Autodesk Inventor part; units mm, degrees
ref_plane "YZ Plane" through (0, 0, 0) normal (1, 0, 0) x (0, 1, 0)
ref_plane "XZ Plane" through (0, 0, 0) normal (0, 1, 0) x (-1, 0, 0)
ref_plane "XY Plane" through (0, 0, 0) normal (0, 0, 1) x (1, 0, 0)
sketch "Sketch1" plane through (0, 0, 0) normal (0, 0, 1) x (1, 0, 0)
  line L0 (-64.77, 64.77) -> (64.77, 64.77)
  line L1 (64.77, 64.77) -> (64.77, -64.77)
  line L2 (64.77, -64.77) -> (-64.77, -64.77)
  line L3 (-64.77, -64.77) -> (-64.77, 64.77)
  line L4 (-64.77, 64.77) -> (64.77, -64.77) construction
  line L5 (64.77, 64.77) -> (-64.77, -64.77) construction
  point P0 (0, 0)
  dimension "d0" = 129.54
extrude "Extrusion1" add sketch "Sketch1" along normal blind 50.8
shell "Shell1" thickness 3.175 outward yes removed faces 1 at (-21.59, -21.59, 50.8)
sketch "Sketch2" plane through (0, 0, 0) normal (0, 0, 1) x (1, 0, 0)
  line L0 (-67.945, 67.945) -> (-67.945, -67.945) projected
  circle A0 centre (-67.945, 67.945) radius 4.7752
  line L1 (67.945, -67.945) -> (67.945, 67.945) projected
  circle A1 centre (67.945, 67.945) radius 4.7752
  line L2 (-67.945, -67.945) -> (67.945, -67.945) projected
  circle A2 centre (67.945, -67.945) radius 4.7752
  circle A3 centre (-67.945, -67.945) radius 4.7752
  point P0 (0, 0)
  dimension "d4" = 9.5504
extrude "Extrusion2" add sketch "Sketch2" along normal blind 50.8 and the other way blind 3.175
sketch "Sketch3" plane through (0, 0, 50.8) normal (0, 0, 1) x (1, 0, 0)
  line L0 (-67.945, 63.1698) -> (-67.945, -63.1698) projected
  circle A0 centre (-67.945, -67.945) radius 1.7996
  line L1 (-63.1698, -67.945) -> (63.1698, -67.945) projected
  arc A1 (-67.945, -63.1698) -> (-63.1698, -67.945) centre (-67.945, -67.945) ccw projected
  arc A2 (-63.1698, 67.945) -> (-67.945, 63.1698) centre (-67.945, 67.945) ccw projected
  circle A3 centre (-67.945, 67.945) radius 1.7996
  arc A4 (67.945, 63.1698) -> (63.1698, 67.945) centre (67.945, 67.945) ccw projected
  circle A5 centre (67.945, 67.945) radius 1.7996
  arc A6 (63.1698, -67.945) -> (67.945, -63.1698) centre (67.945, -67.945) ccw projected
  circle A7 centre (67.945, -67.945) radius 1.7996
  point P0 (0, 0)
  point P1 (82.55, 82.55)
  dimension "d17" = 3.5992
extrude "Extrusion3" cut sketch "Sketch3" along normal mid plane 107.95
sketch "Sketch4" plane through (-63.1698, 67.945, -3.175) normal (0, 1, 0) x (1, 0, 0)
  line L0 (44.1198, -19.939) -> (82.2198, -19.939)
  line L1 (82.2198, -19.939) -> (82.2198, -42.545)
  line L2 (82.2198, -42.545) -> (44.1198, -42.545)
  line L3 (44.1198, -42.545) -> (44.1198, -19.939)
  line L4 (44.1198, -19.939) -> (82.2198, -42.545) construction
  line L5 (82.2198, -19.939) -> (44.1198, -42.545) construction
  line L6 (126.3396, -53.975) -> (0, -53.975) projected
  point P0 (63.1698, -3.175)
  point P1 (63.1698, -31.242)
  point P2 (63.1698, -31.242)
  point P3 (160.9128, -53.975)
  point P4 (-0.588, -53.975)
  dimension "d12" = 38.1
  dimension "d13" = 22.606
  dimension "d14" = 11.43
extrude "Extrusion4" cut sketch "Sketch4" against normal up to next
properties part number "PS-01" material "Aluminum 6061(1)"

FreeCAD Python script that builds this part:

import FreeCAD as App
import Part
import Sketcher
from FreeCAD import Vector
Q = App.Units.Quantity


def faces_at(feature, points):
    """Names of the faces that lie closest to the given points."""
    faces = feature.Shape.Faces
    near = lambda p: min(range(len(faces)), key=lambda i: faces[i].distToShape(Part.Vertex(*p))[0])
    return sorted({f"Face{near(p) + 1}" for p in points})


def add_polygon(sketch, points):
    """Adds a closed chain of lines whose ends are joined by coincident constraints."""
    first, n = sketch.GeometryCount, len(points)
    for a, b in zip(points, points[1:] + points[:1]):
        sketch.addGeometry(Part.LineSegment(App.Vector(*a, 0), App.Vector(*b, 0)), False)
    for i in range(n):
        sketch.addConstraint(Sketcher.Constraint("Coincident", first + i, 2, first + (i + 1) % n, 1))

doc = App.newDocument("Part")
body = doc.addObject("PartDesign::Body", "Body")

sketch1 = body.newObject("Sketcher::SketchObject", "Sketch")
sketch1.AttachmentSupport = (doc.getObject("XY_Plane"), [""])
sketch1.MapMode = "FlatFace"
add_polygon(sketch1, [(64.77, 64.77), (-64.77, 64.77), (-64.77, -64.77), (64.77, -64.77)])
sketch1.addConstraint(Sketcher.Constraint("Horizontal", 0))
sketch1.addConstraint(Sketcher.Constraint("Vertical", 1))
sketch1.addConstraint(Sketcher.Constraint("Horizontal", 2))
sketch1.addConstraint(Sketcher.Constraint("Vertical", 3))
sketch1.addConstraint(Sketcher.Constraint("Symmetric", 0, 2, 2, 2, -1, 1))
sketch1.addConstraint(Sketcher.Constraint("Equal", 2, 1))
sketch1.addConstraint(Sketcher.Constraint("DistanceX", 0, 2, 0, 1, Q("5.1 in")))
pad1 = body.newObject("PartDesign::Pad", "Pad")
pad1.Profile = sketch1
pad1.Length = Q("2 in")
doc.recompute()

thickness = body.newObject("PartDesign::Thickness", "Thickness")
thickness.Base = (pad1, faces_at(pad1, [(-21.59, -21.59, 50.8)]))
thickness.Value = Q("0.125 in")
thickness.Reversed = False
thickness.Join = "Intersection"

sketch2 = body.newObject("Sketcher::SketchObject", "Sketch001")
sketch2.AttachmentSupport = (doc.getObject("XY_Plane"), [""])
sketch2.MapMode = "FlatFace"
sketch2.addGeometry(Part.Circle(Vector(67.945, 67.945, 0), Vector(0, 0, 1), 4.7752), False)
sketch2.addGeometry(Part.Circle(Vector(67.945, -67.945, 0), Vector(0, 0, 1), 4.7752), False)
sketch2.addGeometry(Part.Circle(Vector(-67.945, -67.945, 0), Vector(0, 0, 1), 4.7752), False)
sketch2.addGeometry(Part.Circle(Vector(-67.945, 67.945, 0), Vector(0, 0, 1), 4.7752), False)
sketch2.addConstraint(Sketcher.Constraint("Equal", 0, 1))
sketch2.addConstraint(Sketcher.Constraint("Equal", 1, 2))
sketch2.addConstraint(Sketcher.Constraint("Equal", 2, 3))
sketch2.addConstraint(Sketcher.Constraint("Symmetric", 0, 3, 2, 3, -1, 1))
sketch2.addConstraint(Sketcher.Constraint("Symmetric", 1, 3, 3, 3, -1, 1))
sketch2.addConstraint(Sketcher.Constraint("Symmetric", 1, 3, 2, 3, -2))
sketch2.addConstraint(Sketcher.Constraint("Diameter", 0, Q("0.376 in")))
sketch2.addConstraint(Sketcher.Constraint("DistanceY", 1, 3, 0, 3, Q("5.35 in")))
sketch2.addConstraint(Sketcher.Constraint("DistanceX", 2, 3, 1, 3, Q("5.35 in")))
pad2 = body.newObject("PartDesign::Pad", "Pad001")
pad2.Profile = sketch2
pad2.Type = "TwoLengths"
pad2.Length = Q("2 in")
pad2.Length2 = Q("0.125 in")

sketch3 = body.newObject("Sketcher::SketchObject", "Sketch002")
sketch3.AttachmentSupport = (doc.getObject("XY_Plane"), [""])
sketch3.MapMode = "FlatFace"
sketch3.AttachmentOffset = App.Placement(Vector(0, 0, 2 * 25.4), App.Rotation())
sketch3.addGeometry(Part.Circle(Vector(-67.945, -67.945, 0), Vector(0, 0, 1), 1.7996), False)
sketch3.addGeometry(Part.Circle(Vector(-67.945, 67.945, 0), Vector(0, 0, 1), 1.7996), False)
sketch3.addGeometry(Part.Circle(Vector(67.945, 67.945, 0), Vector(0, 0, 1), 1.7996), False)
sketch3.addGeometry(Part.Circle(Vector(67.945, -67.945, 0), Vector(0, 0, 1), 1.7996), False)
sketch3.addConstraint(Sketcher.Constraint("Equal", 0, 1))
sketch3.addConstraint(Sketcher.Constraint("Equal", 1, 2))
sketch3.addConstraint(Sketcher.Constraint("Equal", 2, 3))
sketch3.addConstraint(Sketcher.Constraint("Symmetric", 0, 3, 2, 3, -1, 1))
sketch3.addConstraint(Sketcher.Constraint("Symmetric", 1, 3, 3, 3, -1, 1))
sketch3.addConstraint(Sketcher.Constraint("Symmetric", 1, 3, 2, 3, -2))
sketch3.addConstraint(Sketcher.Constraint("Diameter", 0, Q("0.1417 in")))
sketch3.addConstraint(Sketcher.Constraint("DistanceY", 0, 3, 1, 3, Q("5.35 in")))
sketch3.addConstraint(Sketcher.Constraint("DistanceX", 1, 3, 2, 3, Q("5.35 in")))
pocket1 = body.newObject("PartDesign::Pocket", "Pocket")
pocket1.Profile = sketch3
pocket1.Length = Q("4.25 in")
pocket1.Midplane = True

sketch4 = body.newObject("Sketcher::SketchObject", "Sketch003")
sketch4.AttachmentSupport = (doc.getObject("XZ_Plane"), [""])
sketch4.MapMode = "FlatFace"
sketch4.AttachmentOffset = App.Placement(Vector(0, 0, -2.675 * 25.4), App.Rotation())
add_polygon(sketch4, [(19.05, 16.764), (-19.05, 16.764), (-19.05, 39.37), (19.05, 39.37)])
sketch4.addConstraint(Sketcher.Constraint("Horizontal", 0))
sketch4.addConstraint(Sketcher.Constraint("Vertical", 1))
sketch4.addConstraint(Sketcher.Constraint("Horizontal", 2))
sketch4.addConstraint(Sketcher.Constraint("Vertical", 3))
sketch4.addConstraint(Sketcher.Constraint("DistanceX", 0, 2, 0, 1, Q("1.5 in")))
sketch4.addConstraint(Sketcher.Constraint("DistanceY", 1, 1, 1, 2, Q("0.89 in")))
sketch4.addConstraint(Sketcher.Constraint("DistanceX", 0, 2, -1, 1, Q("0.75 in")))
sketch4.addConstraint(Sketcher.Constraint("DistanceY", -1, 1, 0, 2, Q("0.66 in")))
pocket2 = body.newObject("PartDesign::Pocket", "Pocket001")
pocket2.Profile = sketch4
pocket2.Type = "UpToFirst"
pocket2.Reversed = True

doc.recompute()
